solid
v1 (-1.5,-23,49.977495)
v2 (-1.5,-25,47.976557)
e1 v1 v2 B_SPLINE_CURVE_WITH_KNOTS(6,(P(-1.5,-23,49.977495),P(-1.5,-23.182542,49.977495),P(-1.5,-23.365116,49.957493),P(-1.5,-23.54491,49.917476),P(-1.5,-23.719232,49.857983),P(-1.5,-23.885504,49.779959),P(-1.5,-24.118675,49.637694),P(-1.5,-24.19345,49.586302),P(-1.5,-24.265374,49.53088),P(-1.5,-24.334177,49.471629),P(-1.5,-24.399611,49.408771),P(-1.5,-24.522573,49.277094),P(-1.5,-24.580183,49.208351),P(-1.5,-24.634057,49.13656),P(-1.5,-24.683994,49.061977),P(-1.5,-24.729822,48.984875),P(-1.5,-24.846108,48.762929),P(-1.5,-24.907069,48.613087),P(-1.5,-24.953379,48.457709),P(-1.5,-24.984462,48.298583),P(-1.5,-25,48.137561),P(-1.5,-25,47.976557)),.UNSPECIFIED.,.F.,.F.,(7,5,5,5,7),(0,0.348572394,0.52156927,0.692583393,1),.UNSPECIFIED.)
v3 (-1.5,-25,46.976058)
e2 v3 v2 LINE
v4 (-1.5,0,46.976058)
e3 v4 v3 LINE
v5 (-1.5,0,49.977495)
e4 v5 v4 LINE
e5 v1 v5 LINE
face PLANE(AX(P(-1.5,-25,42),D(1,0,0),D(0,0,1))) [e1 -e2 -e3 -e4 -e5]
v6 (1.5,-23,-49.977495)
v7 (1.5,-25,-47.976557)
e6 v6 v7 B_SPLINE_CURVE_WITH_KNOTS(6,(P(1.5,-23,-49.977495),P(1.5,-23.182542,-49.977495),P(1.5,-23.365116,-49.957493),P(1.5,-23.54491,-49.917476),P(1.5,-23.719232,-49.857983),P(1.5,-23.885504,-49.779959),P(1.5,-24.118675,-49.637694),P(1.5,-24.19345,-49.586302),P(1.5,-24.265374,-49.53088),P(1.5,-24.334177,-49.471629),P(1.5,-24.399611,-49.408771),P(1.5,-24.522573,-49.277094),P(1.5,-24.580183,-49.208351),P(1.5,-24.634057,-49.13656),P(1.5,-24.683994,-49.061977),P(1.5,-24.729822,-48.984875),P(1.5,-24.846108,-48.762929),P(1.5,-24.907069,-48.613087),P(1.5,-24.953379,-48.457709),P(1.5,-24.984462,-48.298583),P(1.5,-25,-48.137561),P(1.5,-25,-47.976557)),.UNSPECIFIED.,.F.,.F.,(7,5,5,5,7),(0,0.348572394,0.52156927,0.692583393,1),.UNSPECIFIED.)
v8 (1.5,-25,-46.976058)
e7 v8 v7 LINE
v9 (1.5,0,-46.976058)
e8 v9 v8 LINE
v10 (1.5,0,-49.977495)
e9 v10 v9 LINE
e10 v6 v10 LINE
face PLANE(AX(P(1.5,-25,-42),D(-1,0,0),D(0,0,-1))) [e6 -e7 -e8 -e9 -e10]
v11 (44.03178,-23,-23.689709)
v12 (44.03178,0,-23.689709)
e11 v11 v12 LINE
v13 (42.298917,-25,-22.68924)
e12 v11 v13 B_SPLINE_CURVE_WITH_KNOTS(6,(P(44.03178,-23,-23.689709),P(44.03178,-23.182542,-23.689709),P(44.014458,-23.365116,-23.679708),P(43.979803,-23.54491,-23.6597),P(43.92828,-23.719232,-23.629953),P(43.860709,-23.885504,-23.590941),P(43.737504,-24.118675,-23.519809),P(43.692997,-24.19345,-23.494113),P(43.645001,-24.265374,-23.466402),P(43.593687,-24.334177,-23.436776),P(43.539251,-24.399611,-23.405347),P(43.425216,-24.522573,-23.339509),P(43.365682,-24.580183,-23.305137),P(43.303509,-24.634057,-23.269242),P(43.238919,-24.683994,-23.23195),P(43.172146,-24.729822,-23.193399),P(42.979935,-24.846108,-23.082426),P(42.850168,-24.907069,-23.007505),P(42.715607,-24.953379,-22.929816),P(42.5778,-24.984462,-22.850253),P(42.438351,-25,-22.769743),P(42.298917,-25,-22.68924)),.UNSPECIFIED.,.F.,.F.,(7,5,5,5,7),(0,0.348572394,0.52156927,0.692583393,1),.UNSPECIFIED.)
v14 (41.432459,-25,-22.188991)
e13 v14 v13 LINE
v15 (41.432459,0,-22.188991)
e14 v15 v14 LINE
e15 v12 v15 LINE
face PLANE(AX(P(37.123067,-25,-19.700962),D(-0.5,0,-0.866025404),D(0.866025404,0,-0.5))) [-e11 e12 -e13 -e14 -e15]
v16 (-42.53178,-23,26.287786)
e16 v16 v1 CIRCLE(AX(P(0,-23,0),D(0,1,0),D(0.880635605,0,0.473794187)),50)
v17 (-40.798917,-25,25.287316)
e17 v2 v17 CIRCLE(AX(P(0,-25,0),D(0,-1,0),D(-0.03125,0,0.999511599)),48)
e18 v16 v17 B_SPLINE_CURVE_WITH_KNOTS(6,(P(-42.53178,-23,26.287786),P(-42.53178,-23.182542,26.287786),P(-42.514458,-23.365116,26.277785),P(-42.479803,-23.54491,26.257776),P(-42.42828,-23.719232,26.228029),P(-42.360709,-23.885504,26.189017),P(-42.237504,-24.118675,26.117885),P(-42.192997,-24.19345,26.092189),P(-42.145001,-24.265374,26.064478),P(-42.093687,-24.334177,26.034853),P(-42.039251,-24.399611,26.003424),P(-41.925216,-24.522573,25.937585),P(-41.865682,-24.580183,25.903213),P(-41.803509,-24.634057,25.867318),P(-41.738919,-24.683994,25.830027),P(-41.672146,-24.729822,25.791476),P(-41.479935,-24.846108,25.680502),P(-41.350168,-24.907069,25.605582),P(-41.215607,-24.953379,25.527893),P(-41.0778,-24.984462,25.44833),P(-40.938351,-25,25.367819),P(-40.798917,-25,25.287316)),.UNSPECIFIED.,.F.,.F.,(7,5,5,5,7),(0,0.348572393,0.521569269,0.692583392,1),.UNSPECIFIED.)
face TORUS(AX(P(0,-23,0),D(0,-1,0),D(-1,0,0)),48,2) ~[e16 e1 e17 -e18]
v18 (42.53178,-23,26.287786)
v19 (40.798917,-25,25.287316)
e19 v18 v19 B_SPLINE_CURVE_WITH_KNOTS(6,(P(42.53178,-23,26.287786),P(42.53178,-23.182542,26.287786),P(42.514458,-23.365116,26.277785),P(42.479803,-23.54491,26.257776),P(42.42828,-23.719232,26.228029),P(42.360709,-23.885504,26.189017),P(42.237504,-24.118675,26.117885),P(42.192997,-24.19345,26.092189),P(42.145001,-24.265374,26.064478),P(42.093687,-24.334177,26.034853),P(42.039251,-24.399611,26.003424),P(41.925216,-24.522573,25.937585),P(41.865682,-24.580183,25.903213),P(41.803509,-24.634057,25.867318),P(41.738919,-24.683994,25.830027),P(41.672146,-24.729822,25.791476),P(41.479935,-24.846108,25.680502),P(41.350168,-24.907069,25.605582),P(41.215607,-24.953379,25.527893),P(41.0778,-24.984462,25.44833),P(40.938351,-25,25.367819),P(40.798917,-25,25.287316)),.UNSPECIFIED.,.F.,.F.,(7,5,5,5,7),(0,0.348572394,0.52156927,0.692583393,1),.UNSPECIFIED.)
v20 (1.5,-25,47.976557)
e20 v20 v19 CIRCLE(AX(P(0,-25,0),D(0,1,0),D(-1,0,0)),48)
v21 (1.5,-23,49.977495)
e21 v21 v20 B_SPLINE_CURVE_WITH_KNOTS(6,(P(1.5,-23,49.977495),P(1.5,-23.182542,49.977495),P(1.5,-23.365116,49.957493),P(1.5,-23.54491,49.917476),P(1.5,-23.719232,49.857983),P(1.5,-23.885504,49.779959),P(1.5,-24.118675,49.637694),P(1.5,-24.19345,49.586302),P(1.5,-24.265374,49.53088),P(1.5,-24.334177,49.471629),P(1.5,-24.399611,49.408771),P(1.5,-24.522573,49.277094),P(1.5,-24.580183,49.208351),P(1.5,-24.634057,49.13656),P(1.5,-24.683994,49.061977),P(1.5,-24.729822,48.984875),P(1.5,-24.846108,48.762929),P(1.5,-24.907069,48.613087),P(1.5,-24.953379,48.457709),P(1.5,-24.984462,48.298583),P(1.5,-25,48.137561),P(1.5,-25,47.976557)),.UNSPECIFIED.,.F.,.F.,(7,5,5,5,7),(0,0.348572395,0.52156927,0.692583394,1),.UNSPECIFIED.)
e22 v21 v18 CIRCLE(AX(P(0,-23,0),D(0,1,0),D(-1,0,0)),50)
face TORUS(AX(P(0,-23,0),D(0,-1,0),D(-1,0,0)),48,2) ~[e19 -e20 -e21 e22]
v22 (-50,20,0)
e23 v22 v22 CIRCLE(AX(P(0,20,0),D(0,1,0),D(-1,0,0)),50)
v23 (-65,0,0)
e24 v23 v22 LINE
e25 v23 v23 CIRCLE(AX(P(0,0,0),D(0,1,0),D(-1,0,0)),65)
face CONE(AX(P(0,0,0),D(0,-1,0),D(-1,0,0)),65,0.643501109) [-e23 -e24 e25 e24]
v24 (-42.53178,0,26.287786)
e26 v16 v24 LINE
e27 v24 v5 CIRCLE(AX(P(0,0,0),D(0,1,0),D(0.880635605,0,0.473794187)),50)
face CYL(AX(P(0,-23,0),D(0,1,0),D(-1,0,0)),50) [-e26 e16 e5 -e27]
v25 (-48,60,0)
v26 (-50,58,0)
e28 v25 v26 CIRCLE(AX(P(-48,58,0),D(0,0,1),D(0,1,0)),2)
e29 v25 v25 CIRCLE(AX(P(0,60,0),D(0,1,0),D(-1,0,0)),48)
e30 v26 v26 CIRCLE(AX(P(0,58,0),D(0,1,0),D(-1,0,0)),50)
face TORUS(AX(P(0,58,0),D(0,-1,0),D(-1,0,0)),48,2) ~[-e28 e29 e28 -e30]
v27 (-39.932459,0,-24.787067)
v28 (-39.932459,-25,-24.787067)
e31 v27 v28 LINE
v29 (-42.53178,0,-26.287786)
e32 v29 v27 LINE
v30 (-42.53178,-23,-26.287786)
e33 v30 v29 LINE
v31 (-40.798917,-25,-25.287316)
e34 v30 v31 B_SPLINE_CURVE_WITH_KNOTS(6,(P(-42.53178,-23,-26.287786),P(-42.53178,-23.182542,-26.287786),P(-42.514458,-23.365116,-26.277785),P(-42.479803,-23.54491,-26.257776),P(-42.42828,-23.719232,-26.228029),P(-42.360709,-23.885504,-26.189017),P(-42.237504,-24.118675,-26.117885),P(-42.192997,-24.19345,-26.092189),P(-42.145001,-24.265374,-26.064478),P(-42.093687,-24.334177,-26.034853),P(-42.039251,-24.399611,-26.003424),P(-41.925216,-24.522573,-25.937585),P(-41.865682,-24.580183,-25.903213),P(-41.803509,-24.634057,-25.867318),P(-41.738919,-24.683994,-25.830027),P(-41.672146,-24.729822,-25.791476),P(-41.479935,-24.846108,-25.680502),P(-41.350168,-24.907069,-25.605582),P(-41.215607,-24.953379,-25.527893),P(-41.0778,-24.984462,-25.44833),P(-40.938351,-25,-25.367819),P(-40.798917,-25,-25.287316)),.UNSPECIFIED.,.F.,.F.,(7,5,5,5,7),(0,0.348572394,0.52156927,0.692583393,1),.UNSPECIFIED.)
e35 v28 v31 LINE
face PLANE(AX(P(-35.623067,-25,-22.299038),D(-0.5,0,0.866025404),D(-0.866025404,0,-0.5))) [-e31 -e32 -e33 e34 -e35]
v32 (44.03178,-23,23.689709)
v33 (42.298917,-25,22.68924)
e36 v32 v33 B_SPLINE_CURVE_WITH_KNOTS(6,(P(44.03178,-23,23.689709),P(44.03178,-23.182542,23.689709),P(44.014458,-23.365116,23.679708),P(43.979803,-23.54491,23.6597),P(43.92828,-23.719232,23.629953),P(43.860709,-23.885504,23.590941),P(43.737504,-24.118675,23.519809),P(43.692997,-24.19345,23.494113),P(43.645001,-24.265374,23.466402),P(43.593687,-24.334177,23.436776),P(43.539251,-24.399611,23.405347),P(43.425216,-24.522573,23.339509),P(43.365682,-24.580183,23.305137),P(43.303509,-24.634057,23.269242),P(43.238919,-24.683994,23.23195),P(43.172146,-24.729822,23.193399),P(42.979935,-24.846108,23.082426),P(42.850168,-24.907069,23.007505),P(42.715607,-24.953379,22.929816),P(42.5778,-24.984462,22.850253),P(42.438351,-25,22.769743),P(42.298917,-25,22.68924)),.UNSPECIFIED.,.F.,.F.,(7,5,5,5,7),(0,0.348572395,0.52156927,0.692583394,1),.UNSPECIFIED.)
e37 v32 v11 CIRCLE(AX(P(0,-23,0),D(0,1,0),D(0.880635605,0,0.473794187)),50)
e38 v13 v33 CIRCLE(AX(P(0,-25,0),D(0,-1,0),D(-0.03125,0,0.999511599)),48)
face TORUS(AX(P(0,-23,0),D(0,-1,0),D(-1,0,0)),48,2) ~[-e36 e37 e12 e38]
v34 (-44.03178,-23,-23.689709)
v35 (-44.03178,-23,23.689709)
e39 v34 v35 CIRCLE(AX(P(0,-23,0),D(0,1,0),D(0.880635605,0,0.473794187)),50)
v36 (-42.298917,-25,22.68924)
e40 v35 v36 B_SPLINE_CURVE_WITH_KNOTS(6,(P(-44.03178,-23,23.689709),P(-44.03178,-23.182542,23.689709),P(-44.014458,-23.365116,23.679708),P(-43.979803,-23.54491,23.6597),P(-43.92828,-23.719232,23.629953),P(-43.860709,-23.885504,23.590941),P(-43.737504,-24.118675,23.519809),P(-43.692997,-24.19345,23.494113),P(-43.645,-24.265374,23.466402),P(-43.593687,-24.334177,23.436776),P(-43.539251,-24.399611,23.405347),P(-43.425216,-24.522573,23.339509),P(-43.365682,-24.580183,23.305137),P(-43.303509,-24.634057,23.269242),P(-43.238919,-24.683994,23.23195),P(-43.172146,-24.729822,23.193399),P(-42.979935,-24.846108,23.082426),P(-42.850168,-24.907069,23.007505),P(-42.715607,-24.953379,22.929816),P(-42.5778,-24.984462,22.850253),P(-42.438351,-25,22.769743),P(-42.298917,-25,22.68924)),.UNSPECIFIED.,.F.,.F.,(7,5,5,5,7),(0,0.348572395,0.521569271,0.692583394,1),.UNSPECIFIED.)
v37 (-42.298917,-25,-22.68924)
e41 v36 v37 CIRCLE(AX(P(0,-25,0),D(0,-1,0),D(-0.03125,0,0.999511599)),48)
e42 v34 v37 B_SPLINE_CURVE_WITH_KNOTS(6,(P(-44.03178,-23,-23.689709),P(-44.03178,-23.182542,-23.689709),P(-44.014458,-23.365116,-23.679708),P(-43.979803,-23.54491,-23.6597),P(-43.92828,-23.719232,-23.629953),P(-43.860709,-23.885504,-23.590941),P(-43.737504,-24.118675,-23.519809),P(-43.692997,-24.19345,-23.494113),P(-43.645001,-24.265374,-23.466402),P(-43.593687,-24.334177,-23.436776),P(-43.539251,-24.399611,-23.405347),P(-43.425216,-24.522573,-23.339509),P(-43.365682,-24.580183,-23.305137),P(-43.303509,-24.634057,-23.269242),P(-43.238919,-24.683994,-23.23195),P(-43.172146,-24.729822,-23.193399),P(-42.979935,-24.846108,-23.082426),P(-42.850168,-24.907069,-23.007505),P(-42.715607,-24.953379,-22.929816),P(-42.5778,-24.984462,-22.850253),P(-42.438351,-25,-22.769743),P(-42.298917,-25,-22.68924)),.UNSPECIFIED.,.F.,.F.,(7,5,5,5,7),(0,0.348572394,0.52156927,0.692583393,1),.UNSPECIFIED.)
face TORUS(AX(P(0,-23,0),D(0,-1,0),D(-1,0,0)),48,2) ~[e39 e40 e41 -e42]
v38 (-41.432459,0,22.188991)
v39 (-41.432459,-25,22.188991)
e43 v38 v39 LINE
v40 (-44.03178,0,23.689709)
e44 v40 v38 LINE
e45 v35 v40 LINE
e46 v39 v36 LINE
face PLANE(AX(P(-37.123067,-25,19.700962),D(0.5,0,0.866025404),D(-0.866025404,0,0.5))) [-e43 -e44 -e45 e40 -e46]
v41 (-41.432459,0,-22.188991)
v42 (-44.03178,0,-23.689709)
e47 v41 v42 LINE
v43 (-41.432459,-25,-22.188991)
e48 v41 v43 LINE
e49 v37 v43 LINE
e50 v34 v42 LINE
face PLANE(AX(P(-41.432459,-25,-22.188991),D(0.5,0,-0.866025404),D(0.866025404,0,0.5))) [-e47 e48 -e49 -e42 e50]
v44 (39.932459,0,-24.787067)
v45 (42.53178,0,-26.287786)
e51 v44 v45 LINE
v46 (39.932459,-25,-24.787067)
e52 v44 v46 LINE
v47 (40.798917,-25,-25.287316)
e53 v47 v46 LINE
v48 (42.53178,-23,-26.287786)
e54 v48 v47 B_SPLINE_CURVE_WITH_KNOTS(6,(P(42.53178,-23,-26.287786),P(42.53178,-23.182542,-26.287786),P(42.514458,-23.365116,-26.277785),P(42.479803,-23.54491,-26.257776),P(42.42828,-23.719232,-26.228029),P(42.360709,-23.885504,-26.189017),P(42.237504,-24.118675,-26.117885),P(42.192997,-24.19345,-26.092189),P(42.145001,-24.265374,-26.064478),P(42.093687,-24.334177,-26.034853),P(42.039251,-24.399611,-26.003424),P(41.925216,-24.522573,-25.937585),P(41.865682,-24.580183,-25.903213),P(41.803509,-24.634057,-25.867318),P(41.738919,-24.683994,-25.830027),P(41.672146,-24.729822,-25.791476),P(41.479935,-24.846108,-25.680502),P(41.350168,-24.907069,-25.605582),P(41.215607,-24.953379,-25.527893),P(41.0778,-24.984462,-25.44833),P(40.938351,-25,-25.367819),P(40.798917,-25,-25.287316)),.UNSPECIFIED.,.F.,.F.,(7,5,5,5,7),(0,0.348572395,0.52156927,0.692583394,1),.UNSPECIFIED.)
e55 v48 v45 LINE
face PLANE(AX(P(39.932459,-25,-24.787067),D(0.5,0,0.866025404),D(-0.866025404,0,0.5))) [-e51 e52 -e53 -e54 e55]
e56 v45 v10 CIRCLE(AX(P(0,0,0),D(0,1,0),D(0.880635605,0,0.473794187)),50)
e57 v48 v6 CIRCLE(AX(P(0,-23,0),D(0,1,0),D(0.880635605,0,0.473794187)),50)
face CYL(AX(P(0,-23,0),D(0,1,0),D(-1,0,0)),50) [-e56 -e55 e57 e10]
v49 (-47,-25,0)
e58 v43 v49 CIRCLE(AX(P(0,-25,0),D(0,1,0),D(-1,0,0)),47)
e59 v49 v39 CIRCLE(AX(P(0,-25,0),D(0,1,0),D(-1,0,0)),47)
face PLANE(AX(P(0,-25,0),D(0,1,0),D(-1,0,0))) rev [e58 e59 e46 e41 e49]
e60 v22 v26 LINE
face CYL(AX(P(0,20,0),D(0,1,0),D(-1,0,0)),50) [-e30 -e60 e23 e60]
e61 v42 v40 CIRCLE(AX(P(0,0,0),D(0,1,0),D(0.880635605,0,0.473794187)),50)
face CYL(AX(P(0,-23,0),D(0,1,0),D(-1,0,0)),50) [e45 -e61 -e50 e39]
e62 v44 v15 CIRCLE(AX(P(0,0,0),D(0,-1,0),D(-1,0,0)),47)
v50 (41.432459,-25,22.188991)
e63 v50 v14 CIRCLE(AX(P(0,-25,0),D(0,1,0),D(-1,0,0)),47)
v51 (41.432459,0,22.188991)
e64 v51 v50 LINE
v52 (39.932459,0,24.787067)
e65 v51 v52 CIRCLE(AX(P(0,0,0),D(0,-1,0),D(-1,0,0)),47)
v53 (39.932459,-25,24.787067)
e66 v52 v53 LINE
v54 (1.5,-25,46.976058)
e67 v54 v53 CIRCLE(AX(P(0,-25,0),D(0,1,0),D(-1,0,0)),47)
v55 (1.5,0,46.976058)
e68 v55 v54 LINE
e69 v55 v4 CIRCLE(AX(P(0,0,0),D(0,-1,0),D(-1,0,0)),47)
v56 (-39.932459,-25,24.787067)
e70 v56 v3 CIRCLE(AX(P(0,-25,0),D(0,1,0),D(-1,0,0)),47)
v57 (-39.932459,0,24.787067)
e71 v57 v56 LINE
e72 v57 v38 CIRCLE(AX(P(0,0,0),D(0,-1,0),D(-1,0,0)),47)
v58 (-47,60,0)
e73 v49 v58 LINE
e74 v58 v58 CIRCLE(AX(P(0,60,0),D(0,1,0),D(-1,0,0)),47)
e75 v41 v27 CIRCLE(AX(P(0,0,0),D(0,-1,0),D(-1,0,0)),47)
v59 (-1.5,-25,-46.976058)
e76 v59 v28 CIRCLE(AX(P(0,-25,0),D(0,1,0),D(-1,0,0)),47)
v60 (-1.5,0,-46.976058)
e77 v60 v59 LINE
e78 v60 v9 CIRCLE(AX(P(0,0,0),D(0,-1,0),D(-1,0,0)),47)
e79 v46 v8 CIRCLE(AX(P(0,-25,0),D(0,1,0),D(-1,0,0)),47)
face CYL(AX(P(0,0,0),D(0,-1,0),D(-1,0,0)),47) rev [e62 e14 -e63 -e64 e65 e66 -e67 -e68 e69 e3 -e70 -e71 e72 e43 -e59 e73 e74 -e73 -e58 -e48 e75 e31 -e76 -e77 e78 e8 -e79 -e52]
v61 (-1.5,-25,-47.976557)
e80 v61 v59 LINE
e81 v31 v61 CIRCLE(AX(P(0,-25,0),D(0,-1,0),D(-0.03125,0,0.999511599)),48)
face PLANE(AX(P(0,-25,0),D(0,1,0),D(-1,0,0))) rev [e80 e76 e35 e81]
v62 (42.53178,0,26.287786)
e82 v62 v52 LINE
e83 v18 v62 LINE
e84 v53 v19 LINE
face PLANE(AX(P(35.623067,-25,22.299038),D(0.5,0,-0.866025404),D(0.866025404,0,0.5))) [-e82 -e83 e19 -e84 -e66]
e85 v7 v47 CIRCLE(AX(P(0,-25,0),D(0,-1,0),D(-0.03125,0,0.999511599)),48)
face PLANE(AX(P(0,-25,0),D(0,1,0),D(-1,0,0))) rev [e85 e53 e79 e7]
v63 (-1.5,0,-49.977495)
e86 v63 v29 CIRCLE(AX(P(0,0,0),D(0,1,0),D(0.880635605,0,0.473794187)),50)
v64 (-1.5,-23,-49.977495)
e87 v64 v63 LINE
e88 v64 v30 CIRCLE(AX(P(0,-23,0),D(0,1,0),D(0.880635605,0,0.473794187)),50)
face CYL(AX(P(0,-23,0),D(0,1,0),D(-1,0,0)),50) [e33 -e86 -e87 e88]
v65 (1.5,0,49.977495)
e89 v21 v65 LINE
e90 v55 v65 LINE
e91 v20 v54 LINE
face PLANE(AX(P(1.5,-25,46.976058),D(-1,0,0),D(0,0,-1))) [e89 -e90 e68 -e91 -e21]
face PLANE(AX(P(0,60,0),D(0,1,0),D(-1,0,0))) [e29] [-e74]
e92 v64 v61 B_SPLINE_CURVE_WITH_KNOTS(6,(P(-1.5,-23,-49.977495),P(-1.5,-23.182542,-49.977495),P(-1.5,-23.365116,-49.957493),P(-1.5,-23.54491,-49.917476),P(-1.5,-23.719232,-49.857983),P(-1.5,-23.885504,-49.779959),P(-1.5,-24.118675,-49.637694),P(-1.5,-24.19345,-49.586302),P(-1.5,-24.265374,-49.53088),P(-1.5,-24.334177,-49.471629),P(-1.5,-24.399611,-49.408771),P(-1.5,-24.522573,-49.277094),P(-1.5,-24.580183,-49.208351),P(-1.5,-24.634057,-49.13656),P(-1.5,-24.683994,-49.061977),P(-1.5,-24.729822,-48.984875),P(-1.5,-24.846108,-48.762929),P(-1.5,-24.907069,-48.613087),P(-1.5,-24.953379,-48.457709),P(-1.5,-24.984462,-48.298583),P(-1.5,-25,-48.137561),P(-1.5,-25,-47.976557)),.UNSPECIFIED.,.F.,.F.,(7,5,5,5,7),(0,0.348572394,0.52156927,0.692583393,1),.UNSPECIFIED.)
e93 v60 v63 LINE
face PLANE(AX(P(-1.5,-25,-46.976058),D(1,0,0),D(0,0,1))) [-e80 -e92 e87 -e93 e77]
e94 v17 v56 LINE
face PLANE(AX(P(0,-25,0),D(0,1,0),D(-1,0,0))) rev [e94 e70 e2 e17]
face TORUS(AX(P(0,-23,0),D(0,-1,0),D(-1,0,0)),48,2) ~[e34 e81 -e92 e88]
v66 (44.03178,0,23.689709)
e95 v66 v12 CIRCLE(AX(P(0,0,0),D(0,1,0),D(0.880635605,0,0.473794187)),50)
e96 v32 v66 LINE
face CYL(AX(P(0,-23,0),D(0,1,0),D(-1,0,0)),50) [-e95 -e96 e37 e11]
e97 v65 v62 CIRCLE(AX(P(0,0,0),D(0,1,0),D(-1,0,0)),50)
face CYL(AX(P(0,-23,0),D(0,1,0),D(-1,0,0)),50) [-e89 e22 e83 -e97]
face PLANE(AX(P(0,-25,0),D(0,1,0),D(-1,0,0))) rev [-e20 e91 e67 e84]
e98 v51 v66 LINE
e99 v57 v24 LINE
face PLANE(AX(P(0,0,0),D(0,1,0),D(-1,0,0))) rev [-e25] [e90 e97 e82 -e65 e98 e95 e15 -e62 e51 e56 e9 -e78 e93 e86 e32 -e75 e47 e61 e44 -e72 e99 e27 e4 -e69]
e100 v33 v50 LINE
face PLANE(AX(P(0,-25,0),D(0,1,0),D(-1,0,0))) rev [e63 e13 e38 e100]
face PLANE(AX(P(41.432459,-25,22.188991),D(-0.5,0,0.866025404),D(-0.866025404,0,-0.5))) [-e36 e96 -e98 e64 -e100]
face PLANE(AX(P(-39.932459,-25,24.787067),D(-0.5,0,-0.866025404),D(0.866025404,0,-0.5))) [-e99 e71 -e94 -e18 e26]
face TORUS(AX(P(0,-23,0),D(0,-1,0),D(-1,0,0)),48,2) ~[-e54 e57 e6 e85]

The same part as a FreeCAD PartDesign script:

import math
import FreeCAD as App
import Part
import Sketcher
from FreeCAD import Vector
Q = App.Units.Quantity

doc = App.newDocument("Part")
body = doc.addObject("PartDesign::Body", "Body")

sketch1 = doc.addObject("Sketcher::SketchObject", "Sketch")
body.addObject(sketch1)
sketch1.AttachmentSupport = (doc.XY_Plane, [""])
sketch1.MapMode = "FlatFace"
sketch1.addGeometry(Part.LineSegment(Vector(-65, 0, 0), Vector(-50, 0, 0)), False)
sketch1.addGeometry(Part.LineSegment(Vector(-50, 0, 0), Vector(-50, -23, 0)), False)
sketch1.addGeometry(Part.ArcOfCircle(Part.Circle(Vector(-48, -23, 0), Vector(0, 0, 1), 2), math.radians(180), math.radians(270)), False)
sketch1.addGeometry(Part.LineSegment(Vector(-48, -25, 0), Vector(-47, -25, 0)), False)
sketch1.addGeometry(Part.LineSegment(Vector(-47, -25, 0), Vector(-47, 60, 0)), False)
sketch1.addGeometry(Part.LineSegment(Vector(-47, 60, 0), Vector(-48, 60, 0)), False)
sketch1.addGeometry(Part.ArcOfCircle(Part.Circle(Vector(-48, 58, 0), Vector(0, 0, 1), 2), math.radians(90), math.radians(180)), False)
sketch1.addGeometry(Part.LineSegment(Vector(-50, 58, 0), Vector(-50, 20, 0)), False)
sketch1.addGeometry(Part.LineSegment(Vector(-50, 20, 0), Vector(-65, 0, 0)), False)
sketch1.addConstraint(Sketcher.Constraint("Coincident", 0, 2, 1, 1))
sketch1.addConstraint(Sketcher.Constraint("Tangent", 1, 2, 2, 1))
sketch1.addConstraint(Sketcher.Constraint("Tangent", 2, 2, 3, 1))
sketch1.addConstraint(Sketcher.Constraint("Coincident", 3, 2, 4, 1))
sketch1.addConstraint(Sketcher.Constraint("Coincident", 4, 2, 5, 1))
sketch1.addConstraint(Sketcher.Constraint("Tangent", 5, 2, 6, 1))
sketch1.addConstraint(Sketcher.Constraint("Tangent", 6, 2, 7, 1))
sketch1.addConstraint(Sketcher.Constraint("Coincident", 7, 2, 8, 1))
sketch1.addConstraint(Sketcher.Constraint("Coincident", 8, 2, 0, 1))
sketch1.addConstraint(Sketcher.Constraint("Horizontal", 0))
sketch1.addConstraint(Sketcher.Constraint("Vertical", 1))
sketch1.addConstraint(Sketcher.Constraint("Horizontal", 3))
sketch1.addConstraint(Sketcher.Constraint("Vertical", 4))
sketch1.addConstraint(Sketcher.Constraint("Horizontal", 5))
sketch1.addConstraint(Sketcher.Constraint("Vertical", 7))
sketch1.addConstraint(Sketcher.Constraint("Equal", 2, 6))
sketch1.addConstraint(Sketcher.Constraint("PointOnObject", 0, 2, -1))
sketch1.addConstraint(Sketcher.Constraint("Vertical", 2, 3, 6, 3))
sketch1.addConstraint(Sketcher.Constraint("Radius", 2, Q("2 mm")))
sketch1.addConstraint(Sketcher.Constraint("DistanceX", 0, 1, 0, 2, Q("15 mm")))
sketch1.addConstraint(Sketcher.Constraint("Distance", 8, Q("25 mm")))
sketch1.addConstraint(Sketcher.Constraint("DistanceX", 0, 2, -1, 1, Q("50 mm")))
sketch1.addConstraint(Sketcher.Constraint("DistanceY", 2, 2, -1, 1, Q("25 mm")))
sketch1.addConstraint(Sketcher.Constraint("DistanceX", 1, 2, 3, 2, Q("3 mm")))
sketch1.addConstraint(Sketcher.Constraint("DistanceY", 7, 2, 5, 2, Q("40 mm")))
revolution = doc.addObject("PartDesign::Revolution", "Revolution")
body.addObject(revolution)
revolution.Profile = sketch1
revolution.ReferenceAxis = (sketch1, ["V_Axis"])
revolution.Angle = 360

sketch2 = doc.addObject("Sketcher::SketchObject", "Sketch001")
body.addObject(sketch2)
sketch2.AttachmentSupport = (doc.XZ_Plane, [""])
sketch2.MapMode = "FlatFace"
sketch2.AttachmentOffset = App.Placement(Vector(0, 0, 25), App.Rotation())
sketch2.addGeometry(Part.LineSegment(Vector(-1.5, 42, 0), Vector(1.5, 42, 0)), False)
sketch2.addGeometry(Part.LineSegment(Vector(1.5, 42, 0), Vector(1.5, 52, 0)), False)
sketch2.addGeometry(Part.LineSegment(Vector(1.5, 52, 0), Vector(-1.5, 52, 0)), False)
sketch2.addGeometry(Part.LineSegment(Vector(-1.5, 52, 0), Vector(-1.5, 42, 0)), False)
sketch2.addConstraint(Sketcher.Constraint("Coincident", 0, 2, 1, 1))
sketch2.addConstraint(Sketcher.Constraint("Coincident", 1, 2, 2, 1))
sketch2.addConstraint(Sketcher.Constraint("Coincident", 2, 2, 3, 1))
sketch2.addConstraint(Sketcher.Constraint("Coincident", 3, 2, 0, 1))
sketch2.addConstraint(Sketcher.Constraint("Horizontal", 0))
sketch2.addConstraint(Sketcher.Constraint("Vertical", 1))
sketch2.addConstraint(Sketcher.Constraint("Horizontal", 2))
sketch2.addConstraint(Sketcher.Constraint("Vertical", 3))
sketch2.addConstraint(Sketcher.Constraint("DistanceX", 0, 1, 0, 2, Q("3 mm")))
sketch2.addConstraint(Sketcher.Constraint("DistanceY", 1, 1, 1, 2, Q("10 mm")))
sketch2.addConstraint(Sketcher.Constraint("DistanceY", -1, 1, 0, 2, Q("42 mm")))
sketch2.addConstraint(Sketcher.Constraint("DistanceX", -1, 1, 0, 2, Q("1.5 mm")))
pocket1 = doc.addObject("PartDesign::Pocket", "Pocket")
body.addObject(pocket1)
pocket1.Profile = sketch2
pocket1.Length = 25
doc.recompute()

polarpattern = doc.addObject("PartDesign::PolarPattern", "PolarPattern")
body.addObject(polarpattern)
polarpattern.Originals = [pocket1]
polarpattern.Axis = (doc.Y_Axis, [""])
polarpattern.Angle = 360
polarpattern.Occurrences = 6
body.Tip = polarpattern

doc.recompute()
